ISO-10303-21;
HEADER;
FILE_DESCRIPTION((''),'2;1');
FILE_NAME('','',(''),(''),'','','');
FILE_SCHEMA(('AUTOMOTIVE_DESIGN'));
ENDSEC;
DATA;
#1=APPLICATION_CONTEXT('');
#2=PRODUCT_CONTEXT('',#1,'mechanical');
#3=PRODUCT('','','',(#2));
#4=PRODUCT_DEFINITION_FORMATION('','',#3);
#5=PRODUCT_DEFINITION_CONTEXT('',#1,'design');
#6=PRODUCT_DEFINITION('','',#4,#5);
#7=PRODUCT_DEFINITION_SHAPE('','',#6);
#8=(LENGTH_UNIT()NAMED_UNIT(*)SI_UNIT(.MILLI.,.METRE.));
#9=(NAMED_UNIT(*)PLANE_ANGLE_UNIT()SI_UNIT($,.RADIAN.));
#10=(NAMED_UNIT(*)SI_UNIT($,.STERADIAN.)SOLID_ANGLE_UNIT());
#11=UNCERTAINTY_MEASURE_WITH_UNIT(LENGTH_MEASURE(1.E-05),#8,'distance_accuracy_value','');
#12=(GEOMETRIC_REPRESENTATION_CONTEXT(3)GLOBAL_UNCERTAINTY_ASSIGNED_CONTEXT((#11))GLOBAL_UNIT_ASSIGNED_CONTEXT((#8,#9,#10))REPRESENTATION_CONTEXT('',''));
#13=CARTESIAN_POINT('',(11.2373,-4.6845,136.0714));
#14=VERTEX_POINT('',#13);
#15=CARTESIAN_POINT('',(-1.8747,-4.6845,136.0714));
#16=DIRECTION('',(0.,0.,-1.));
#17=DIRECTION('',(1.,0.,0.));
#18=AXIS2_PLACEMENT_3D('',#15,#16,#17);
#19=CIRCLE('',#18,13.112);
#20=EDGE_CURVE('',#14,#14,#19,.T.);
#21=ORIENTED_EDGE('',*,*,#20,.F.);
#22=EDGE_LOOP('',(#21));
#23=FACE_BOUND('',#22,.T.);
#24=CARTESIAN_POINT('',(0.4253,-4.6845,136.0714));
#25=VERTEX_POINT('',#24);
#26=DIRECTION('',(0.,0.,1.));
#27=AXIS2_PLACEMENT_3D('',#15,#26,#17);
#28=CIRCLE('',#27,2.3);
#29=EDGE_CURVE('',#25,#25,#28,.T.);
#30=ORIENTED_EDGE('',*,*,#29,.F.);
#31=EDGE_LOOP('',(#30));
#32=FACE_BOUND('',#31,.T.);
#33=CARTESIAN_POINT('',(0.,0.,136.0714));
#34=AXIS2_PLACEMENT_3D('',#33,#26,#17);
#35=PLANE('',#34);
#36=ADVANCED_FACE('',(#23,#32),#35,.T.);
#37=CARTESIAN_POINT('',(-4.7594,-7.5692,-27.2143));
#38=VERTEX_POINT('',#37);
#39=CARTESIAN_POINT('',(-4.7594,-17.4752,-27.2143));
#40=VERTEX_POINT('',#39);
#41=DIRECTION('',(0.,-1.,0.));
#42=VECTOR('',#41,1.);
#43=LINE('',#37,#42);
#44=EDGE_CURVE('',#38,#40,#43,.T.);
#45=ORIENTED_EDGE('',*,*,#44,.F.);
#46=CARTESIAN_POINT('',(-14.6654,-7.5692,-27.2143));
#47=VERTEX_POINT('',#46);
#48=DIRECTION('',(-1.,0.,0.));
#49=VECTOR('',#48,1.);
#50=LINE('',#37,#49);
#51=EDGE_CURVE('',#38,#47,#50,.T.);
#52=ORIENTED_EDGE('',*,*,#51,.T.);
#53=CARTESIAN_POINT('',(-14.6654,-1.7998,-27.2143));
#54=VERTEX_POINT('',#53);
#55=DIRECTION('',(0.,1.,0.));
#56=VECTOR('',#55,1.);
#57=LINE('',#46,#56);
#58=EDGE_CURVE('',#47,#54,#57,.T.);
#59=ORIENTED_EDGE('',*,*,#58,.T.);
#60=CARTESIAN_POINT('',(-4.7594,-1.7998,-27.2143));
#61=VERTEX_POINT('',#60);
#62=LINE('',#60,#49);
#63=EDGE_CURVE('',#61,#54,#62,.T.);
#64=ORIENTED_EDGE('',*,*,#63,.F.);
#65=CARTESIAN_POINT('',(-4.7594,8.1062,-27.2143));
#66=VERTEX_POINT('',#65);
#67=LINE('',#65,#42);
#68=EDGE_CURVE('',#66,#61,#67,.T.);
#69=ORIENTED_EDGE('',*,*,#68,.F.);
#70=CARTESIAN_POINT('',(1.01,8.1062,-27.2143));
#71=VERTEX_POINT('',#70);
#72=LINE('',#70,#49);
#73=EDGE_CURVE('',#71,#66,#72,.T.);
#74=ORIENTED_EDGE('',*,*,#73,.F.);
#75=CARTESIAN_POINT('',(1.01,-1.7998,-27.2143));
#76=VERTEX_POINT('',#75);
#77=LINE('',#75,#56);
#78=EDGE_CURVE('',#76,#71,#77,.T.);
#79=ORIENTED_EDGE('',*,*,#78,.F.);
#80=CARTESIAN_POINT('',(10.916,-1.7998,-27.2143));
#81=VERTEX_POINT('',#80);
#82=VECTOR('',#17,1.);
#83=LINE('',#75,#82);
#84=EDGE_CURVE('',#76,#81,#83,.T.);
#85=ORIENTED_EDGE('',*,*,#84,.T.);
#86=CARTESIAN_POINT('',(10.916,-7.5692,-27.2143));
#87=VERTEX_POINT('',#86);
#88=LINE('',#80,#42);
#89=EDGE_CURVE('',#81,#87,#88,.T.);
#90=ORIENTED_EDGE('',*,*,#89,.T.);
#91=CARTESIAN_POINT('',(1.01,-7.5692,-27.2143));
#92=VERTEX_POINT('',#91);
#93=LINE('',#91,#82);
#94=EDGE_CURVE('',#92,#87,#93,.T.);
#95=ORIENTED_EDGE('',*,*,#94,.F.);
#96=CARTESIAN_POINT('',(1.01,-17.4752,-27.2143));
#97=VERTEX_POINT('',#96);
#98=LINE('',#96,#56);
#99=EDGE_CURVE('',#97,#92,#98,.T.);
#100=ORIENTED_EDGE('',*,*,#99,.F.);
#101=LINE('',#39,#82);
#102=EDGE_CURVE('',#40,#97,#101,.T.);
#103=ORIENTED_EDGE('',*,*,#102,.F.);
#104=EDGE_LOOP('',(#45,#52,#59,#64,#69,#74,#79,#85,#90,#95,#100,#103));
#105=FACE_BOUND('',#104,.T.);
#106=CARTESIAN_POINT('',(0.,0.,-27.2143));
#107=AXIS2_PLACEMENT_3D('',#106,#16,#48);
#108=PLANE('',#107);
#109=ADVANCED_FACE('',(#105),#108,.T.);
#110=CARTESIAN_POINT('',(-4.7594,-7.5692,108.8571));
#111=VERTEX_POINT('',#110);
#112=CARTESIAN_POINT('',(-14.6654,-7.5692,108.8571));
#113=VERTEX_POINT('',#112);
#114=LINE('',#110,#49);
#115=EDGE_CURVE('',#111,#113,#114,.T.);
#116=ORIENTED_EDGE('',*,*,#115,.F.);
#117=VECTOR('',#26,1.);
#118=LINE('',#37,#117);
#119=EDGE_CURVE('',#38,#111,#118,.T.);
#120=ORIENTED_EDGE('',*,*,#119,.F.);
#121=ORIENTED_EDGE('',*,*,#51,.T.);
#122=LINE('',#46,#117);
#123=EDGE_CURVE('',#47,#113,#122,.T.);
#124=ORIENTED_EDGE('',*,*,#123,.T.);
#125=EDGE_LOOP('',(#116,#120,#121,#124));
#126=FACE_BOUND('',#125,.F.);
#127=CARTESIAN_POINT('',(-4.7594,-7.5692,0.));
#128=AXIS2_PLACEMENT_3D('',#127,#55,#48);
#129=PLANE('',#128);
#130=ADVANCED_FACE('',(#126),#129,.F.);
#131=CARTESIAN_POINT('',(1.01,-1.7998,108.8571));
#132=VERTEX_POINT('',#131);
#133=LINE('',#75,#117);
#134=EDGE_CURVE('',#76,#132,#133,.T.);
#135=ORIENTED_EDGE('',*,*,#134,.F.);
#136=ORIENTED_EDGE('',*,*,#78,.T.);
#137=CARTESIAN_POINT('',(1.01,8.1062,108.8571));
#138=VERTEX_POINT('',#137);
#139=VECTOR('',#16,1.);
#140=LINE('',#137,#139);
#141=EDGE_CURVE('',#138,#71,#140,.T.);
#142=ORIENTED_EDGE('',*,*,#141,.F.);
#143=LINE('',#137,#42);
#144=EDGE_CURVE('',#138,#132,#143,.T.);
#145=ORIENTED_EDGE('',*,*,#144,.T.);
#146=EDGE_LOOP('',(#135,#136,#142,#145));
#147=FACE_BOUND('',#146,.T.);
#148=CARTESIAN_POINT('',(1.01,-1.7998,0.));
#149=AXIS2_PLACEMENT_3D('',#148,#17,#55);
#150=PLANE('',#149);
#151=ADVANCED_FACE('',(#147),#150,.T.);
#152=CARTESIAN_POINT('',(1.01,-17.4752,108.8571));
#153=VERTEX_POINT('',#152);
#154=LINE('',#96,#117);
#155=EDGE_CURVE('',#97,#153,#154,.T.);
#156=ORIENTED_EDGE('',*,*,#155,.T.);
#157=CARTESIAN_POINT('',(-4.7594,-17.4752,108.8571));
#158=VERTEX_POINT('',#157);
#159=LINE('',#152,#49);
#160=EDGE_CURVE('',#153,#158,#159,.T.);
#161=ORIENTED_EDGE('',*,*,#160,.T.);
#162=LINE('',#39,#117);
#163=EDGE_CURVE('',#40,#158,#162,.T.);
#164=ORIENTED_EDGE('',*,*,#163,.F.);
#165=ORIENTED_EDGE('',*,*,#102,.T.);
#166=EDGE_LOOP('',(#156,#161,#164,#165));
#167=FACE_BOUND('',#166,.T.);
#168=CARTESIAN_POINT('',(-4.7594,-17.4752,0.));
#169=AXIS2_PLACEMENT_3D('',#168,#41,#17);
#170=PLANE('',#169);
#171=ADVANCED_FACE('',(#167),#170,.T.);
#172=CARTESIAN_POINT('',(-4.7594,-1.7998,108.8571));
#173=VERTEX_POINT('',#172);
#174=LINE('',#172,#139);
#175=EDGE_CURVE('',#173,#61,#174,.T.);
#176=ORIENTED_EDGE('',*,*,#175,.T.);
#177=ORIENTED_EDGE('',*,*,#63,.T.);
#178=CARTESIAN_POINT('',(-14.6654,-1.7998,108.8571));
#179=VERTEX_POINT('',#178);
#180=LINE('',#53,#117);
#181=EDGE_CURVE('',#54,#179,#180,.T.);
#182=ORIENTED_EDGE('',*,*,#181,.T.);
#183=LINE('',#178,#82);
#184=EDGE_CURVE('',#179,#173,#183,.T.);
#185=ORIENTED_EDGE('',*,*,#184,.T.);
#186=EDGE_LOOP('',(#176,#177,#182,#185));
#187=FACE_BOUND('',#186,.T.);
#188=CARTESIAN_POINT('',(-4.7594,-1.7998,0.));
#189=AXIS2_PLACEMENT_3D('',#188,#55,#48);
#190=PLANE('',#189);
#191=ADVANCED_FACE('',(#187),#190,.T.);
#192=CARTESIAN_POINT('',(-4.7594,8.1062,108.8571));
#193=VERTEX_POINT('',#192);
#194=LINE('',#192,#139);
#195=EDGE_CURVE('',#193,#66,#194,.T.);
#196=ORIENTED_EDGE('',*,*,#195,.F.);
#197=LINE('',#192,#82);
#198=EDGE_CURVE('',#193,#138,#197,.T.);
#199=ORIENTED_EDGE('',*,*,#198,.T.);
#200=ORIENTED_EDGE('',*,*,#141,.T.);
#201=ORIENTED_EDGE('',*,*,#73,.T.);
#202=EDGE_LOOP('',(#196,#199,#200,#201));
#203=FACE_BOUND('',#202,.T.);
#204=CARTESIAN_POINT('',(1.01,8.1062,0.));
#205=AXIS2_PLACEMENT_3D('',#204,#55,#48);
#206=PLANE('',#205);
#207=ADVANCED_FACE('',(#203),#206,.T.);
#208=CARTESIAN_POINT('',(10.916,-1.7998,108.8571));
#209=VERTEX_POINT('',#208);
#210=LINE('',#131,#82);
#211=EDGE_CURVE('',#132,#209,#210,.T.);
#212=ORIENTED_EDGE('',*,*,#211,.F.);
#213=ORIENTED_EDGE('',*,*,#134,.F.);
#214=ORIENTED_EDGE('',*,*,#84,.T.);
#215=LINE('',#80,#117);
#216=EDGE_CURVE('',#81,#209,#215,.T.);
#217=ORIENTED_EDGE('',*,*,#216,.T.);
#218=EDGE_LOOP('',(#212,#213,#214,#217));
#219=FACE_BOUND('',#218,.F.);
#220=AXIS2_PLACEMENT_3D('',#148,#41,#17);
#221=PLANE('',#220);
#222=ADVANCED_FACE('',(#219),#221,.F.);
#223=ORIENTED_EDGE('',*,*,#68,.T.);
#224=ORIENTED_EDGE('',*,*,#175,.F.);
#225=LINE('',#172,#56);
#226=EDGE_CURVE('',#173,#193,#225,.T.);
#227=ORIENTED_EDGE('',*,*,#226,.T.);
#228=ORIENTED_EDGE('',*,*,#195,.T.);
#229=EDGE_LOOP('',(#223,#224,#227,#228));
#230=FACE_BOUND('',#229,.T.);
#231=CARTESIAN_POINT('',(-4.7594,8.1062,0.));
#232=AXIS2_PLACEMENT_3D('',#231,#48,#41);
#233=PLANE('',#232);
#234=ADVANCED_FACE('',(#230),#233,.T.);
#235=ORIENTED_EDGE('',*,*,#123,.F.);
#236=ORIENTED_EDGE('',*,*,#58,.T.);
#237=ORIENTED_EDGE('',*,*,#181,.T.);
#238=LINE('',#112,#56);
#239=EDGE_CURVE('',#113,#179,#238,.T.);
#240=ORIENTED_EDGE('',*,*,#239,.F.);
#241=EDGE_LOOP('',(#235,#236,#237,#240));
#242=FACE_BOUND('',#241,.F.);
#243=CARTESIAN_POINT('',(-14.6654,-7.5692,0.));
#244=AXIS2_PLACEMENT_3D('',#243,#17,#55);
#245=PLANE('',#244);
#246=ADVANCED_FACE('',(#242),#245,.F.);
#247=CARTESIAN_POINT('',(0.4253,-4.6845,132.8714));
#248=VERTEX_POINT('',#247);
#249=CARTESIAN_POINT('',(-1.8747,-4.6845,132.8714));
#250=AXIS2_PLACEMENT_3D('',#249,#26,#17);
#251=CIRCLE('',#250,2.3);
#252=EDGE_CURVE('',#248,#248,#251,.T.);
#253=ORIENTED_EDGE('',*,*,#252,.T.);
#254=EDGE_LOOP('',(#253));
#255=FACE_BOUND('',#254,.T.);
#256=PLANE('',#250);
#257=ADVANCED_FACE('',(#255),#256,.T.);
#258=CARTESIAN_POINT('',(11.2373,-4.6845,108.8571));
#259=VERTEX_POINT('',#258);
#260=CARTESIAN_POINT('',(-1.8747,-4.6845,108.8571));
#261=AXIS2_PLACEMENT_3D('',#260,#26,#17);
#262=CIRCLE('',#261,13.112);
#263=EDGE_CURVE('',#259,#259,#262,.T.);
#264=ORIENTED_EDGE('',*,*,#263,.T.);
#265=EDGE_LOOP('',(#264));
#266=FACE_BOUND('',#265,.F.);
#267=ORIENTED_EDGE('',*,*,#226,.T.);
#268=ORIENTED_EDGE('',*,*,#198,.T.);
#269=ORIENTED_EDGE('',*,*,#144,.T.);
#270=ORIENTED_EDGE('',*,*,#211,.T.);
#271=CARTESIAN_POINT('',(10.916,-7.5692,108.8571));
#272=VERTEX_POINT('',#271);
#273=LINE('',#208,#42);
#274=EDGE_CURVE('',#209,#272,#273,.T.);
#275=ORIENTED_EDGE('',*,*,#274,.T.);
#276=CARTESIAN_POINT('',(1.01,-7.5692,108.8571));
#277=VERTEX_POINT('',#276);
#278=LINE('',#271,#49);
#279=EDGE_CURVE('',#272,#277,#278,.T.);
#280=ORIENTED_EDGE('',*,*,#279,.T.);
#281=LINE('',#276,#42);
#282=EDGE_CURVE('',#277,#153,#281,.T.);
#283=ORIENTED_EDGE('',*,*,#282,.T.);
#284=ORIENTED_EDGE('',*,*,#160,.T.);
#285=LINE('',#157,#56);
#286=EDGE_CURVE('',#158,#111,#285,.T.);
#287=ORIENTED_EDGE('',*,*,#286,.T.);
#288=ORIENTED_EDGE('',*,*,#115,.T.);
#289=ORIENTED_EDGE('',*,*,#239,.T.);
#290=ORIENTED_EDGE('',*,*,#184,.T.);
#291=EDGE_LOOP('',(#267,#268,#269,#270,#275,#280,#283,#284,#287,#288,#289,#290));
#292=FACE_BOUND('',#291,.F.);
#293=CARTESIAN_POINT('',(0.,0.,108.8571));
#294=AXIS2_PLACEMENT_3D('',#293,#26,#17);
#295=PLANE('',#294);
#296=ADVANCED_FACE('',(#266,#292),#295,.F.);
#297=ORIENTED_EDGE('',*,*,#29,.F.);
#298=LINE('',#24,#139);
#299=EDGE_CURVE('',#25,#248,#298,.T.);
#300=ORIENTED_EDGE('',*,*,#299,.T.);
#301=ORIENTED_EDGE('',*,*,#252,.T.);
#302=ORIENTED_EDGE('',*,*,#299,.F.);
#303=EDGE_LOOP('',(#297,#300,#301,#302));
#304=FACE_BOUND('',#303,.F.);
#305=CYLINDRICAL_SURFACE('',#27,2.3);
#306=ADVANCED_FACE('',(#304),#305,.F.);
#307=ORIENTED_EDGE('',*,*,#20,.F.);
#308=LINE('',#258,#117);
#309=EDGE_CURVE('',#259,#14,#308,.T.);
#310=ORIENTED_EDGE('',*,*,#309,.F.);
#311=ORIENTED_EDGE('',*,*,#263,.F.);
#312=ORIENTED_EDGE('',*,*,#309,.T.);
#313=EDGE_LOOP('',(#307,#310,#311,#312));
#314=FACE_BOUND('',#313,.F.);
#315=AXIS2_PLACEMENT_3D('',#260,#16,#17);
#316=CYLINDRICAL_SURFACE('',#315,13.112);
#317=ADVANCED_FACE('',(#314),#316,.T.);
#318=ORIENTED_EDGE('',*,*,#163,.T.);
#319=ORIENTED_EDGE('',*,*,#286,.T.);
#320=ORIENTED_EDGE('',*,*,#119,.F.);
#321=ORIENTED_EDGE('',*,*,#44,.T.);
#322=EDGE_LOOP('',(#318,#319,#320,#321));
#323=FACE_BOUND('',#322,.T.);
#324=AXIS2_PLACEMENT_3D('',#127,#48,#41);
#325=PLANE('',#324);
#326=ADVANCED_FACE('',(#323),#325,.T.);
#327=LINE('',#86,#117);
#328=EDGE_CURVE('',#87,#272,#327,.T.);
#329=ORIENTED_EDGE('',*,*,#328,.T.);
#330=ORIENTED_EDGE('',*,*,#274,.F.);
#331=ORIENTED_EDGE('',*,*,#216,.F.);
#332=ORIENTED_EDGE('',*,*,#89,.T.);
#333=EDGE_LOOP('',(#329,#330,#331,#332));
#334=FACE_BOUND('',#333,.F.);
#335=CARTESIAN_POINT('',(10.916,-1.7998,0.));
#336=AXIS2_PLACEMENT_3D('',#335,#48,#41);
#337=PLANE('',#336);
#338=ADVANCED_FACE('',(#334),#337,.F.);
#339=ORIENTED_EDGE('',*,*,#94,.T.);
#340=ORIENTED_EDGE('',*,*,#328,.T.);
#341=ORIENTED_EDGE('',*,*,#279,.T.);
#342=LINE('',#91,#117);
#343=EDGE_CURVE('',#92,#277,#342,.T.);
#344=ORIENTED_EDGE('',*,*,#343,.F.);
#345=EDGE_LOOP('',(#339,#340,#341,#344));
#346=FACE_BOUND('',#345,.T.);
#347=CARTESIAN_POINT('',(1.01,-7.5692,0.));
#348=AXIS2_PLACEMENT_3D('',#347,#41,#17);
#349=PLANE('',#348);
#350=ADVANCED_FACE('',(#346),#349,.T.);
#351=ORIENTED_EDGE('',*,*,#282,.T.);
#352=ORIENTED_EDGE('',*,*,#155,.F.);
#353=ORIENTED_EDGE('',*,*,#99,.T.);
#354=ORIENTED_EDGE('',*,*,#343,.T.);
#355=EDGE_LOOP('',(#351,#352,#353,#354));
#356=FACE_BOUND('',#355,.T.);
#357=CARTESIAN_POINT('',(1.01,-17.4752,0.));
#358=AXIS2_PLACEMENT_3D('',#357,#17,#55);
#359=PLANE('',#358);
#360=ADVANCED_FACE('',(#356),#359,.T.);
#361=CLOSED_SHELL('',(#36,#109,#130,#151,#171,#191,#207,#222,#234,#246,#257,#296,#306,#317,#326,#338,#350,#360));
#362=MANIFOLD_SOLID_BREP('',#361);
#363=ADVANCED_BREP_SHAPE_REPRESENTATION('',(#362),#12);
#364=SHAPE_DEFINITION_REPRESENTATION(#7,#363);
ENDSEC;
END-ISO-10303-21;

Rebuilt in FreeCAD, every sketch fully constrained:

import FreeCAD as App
import Part
import Sketcher
Q = App.Units.Quantity


def add_polygon(sketch, points):
    """Adds a closed chain of lines whose ends are joined by coincident constraints."""
    first, n = sketch.GeometryCount, len(points)
    for a, b in zip(points, points[1:] + points[:1]):
        sketch.addGeometry(Part.LineSegment(App.Vector(*a, 0), App.Vector(*b, 0)), False)
    for i in range(n):
        sketch.addConstraint(Sketcher.Constraint("Coincident", first + i, 2, first + (i + 1) % n, 1))

doc = App.newDocument("Part")
body = doc.addObject("PartDesign::Body", "Body")

# Sketch on XY plane
sketch1 = body.newObject("Sketcher::SketchObject", "Sketch")
sketch1.AttachmentSupport = (doc.getObject("XY_Plane"), [""])
sketch1.MapMode = "FlatFace"
add_polygon(sketch1, [(1, 8), (-5, 8), (-5, -2), (-15, -2), (-15, -8), (-5, -8), (-5, -17), (1, -17), (1, -8), (11, -8), (11, -2), (1, -2)])  # lines 0-11
sketch1.addConstraint(Sketcher.Constraint("Horizontal", 0))
sketch1.addConstraint(Sketcher.Constraint("Vertical", 1))
sketch1.addConstraint(Sketcher.Constraint("Horizontal", 2))
sketch1.addConstraint(Sketcher.Constraint("Vertical", 3))
sketch1.addConstraint(Sketcher.Constraint("Horizontal", 4))
sketch1.addConstraint(Sketcher.Constraint("Vertical", 5))
sketch1.addConstraint(Sketcher.Constraint("Horizontal", 6))
sketch1.addConstraint(Sketcher.Constraint("Vertical", 7))
sketch1.addConstraint(Sketcher.Constraint("Horizontal", 8))
sketch1.addConstraint(Sketcher.Constraint("Vertical", 9))
sketch1.addConstraint(Sketcher.Constraint("Horizontal", 10))
sketch1.addConstraint(Sketcher.Constraint("Vertical", 11))
sketch1.addConstraint(Sketcher.Constraint("Horizontal", 4, 2, 7, 2))
sketch1.addConstraint(Sketcher.Constraint("Horizontal", 2, 2, 9, 2))
sketch1.addConstraint(Sketcher.Constraint("Vertical", 1, 2, 4, 2))
sketch1.addConstraint(Sketcher.Constraint("Vertical", 7, 2, 10, 2))
sketch1.addConstraint(Sketcher.Constraint("Equal", 4, 8))
sketch1.addConstraint(Sketcher.Constraint("Equal", 10, 1))
sketch1.addConstraint(Sketcher.Constraint("Equal", 6, 3))
sketch1.addConstraint(Sketcher.Constraint("Equal", 1, 5))
sketch1.addConstraint(Sketcher.Constraint("DistanceX", 2, 2, 2, 1, Q("9.906 mm")))
sketch1.addConstraint(Sketcher.Constraint("DistanceX", 0, 2, 0, 1, Q("5.7694 mm")))
sketch1.addConstraint(Sketcher.Constraint("DistanceX", -1, 1, 6, 2, Q("1.01 mm")))
sketch1.addConstraint(Sketcher.Constraint("DistanceY", -1, 1, 0, 2, Q("8.1062 mm")))
pad1 = body.newObject("PartDesign::Pad", "Pad")
pad1.Profile = sketch1
pad1.Length = 108.8571

# Sketch on XY plane
sketch2 = body.newObject("Sketcher::SketchObject", "Sketch001")
sketch2.AttachmentSupport = (doc.getObject("XY_Plane"), [""])
sketch2.MapMode = "FlatFace"
sketch2.AttachmentOffset = App.Placement(App.Vector(0, 0, 108.8571), App.Rotation())
sketch2.addGeometry(Part.Circle(App.Vector(-2, -5, 0), App.Vector(0, 0, 1), 13), False)
sketch2.addConstraint(Sketcher.Constraint("Diameter", 0, Q("26.224 mm")))
sketch2.addConstraint(Sketcher.Constraint("DistanceX", 0, 3, -1, 1, Q("1.8747 mm")))
sketch2.addConstraint(Sketcher.Constraint("DistanceY", 0, 3, -1, 1, Q("4.6845 mm")))
pad2 = body.newObject("PartDesign::Pad", "Pad001")
pad2.Profile = sketch2
pad2.Length = 27.2143

# Sketch on XY plane
sketch3 = body.newObject("Sketcher::SketchObject", "Sketch002")
sketch3.AttachmentSupport = (doc.getObject("XY_Plane"), [""])
sketch3.MapMode = "FlatFace"
add_polygon(sketch3, [(-15, -2), (-5, -2), (-5, 8), (1, 8), (1, -2), (11, -2), (11, -8), (1, -8), (1, -17), (-5, -17), (-5, -8), (-15, -8)])  # lines 0-11
sketch3.addConstraint(Sketcher.Constraint("Horizontal", 0))
sketch3.addConstraint(Sketcher.Constraint("Vertical", 1))
sketch3.addConstraint(Sketcher.Constraint("Horizontal", 2))
sketch3.addConstraint(Sketcher.Constraint("Vertical", 3))
sketch3.addConstraint(Sketcher.Constraint("Horizontal", 4))
sketch3.addConstraint(Sketcher.Constraint("Vertical", 5))
sketch3.addConstraint(Sketcher.Constraint("Horizontal", 6))
sketch3.addConstraint(Sketcher.Constraint("Vertical", 7))
sketch3.addConstraint(Sketcher.Constraint("Horizontal", 8))
sketch3.addConstraint(Sketcher.Constraint("Vertical", 9))
sketch3.addConstraint(Sketcher.Constraint("Horizontal", 10))
sketch3.addConstraint(Sketcher.Constraint("Vertical", 11))
sketch3.addConstraint(Sketcher.Constraint("Horizontal", 0, 2, 3, 2))
sketch3.addConstraint(Sketcher.Constraint("Horizontal", 6, 2, 9, 2))
sketch3.addConstraint(Sketcher.Constraint("Vertical", 3, 2, 6, 2))
sketch3.addConstraint(Sketcher.Constraint("Vertical", 1, 2, 8, 2))
sketch3.addConstraint(Sketcher.Constraint("Equal", 0, 4))
sketch3.addConstraint(Sketcher.Constraint("Equal", 10, 1))
sketch3.addConstraint(Sketcher.Constraint("Equal", 8, 5))
sketch3.addConstraint(Sketcher.Constraint("Equal", 3, 7))
sketch3.addConstraint(Sketcher.Constraint("DistanceX", 0, 1, 0, 2, Q("9.906 mm")))
sketch3.addConstraint(Sketcher.Constraint("DistanceX", -1, 1, 2, 2, Q("1.01 mm")))
sketch3.addConstraint(Sketcher.Constraint("DistanceX", 2, 1, 2, 2, Q("5.7694 mm")))
sketch3.addConstraint(Sketcher.Constraint("DistanceY", 0, 2, -1, 1, Q("1.7998 mm")))
pad3 = body.newObject("PartDesign::Pad", "Pad002")
pad3.Profile = sketch3
pad3.Length = 27.2143
pad3.Reversed = True

# Sketch on XY plane
sketch4 = body.newObject("Sketcher::SketchObject", "Sketch003")
sketch4.AttachmentSupport = (doc.getObject("XY_Plane"), [""])
sketch4.MapMode = "FlatFace"
sketch4.AttachmentOffset = App.Placement(App.Vector(0, 0, 136.0714), App.Rotation())
sketch4.addGeometry(Part.Circle(App.Vector(-1.9, -4.7, 0), App.Vector(0, 0, 1), 2.3), False)
sketch4.addConstraint(Sketcher.Constraint("Diameter", 0, Q("4.6 mm")))
sketch4.addConstraint(Sketcher.Constraint("DistanceX", 0, 3, -1, 1, Q("1.8747 mm")))
sketch4.addConstraint(Sketcher.Constraint("DistanceY", 0, 3, -1, 1, Q("4.6845 mm")))
pocket1 = body.newObject("PartDesign::Pocket", "Pocket")
pocket1.Profile = sketch4
pocket1.Length = 3.2

doc.recompute()
